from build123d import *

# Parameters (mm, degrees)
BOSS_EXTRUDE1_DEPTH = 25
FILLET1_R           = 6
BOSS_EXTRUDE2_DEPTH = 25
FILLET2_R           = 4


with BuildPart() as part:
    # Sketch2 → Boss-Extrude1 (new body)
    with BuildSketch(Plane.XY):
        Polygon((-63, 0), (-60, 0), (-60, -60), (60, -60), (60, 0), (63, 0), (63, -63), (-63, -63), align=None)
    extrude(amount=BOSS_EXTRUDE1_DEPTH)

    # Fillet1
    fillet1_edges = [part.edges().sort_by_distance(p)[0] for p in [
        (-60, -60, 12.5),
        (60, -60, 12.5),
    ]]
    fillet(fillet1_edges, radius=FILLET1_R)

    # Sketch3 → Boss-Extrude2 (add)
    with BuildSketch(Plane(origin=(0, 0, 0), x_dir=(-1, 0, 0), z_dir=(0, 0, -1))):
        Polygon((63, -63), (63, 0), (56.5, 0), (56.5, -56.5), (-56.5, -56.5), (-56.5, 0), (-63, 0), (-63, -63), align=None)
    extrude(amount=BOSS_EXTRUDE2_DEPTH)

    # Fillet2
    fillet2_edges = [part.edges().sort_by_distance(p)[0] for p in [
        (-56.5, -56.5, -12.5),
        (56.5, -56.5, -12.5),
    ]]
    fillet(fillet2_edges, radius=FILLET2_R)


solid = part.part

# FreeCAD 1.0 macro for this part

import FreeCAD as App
import Part
import Sketcher
Q = App.Units.Quantity


def edges_at(feature, points):
    """Names of the edges that pass closest to the given points."""
    edges = feature.Shape.Edges
    near = lambda p: min(range(len(edges)), key=lambda i: edges[i].distToShape(Part.Vertex(*p))[0])
    return sorted({f"Edge{near(p) + 1}" for p in points})


def add_polygon(sketch, points):
    """Adds a closed chain of lines whose ends are joined by coincident constraints."""
    first, n = sketch.GeometryCount, len(points)
    for a, b in zip(points, points[1:] + points[:1]):
        sketch.addGeometry(Part.LineSegment(App.Vector(*a, 0), App.Vector(*b, 0)), False)
    for i in range(n):
        sketch.addConstraint(Sketcher.Constraint("Coincident", first + i, 2, first + (i + 1) % n, 1))

doc = App.newDocument("Part")
body = doc.addObject("PartDesign::Body", "Body")

# Sketch on XY plane
sketch1 = doc.addObject("Sketcher::SketchObject", "Sketch")
body.addObject(sketch1)
sketch1.AttachmentSupport = (doc.XY_Plane, [""])
sketch1.MapMode = "FlatFace"
add_polygon(sketch1, [(-60, 0), (-63, 0), (-63, -63), (63, -63), (63, 0), (60, 0), (60, -60), (-60, -60)])  # lines 0-7
sketch1.addConstraint([
    Sketcher.Constraint("Horizontal", 0),
    Sketcher.Constraint("Vertical", 1),
    Sketcher.Constraint("Horizontal", 2),
    Sketcher.Constraint("Vertical", 3),
    Sketcher.Constraint("Horizontal", 4),
    Sketcher.Constraint("Vertical", 5),
    Sketcher.Constraint("Horizontal", 6),
    Sketcher.Constraint("Vertical", 7),
    Sketcher.Constraint("Symmetric", 0, 2, 3, 2, -1, 1),
    Sketcher.Constraint("Symmetric", 4, 2, 7, 2, -2),
    Sketcher.Constraint("DistanceX", 0, 2, 0, 1, Q("3 mm")),
    Sketcher.Constraint("DistanceX", 2, 1, 2, 2, Q("126 mm")),
    Sketcher.Constraint("DistanceY", 1, 2, 1, 1, Q("63 mm")),
    Sketcher.Constraint("DistanceY", 5, 2, 5, 1, Q("60 mm")),
])
pad1 = doc.addObject("PartDesign::Pad", "Pad")
body.addObject(pad1)
pad1.Profile = sketch1
pad1.Length = 25
doc.recompute()

fillet = doc.addObject("PartDesign::Fillet", "Fillet")
body.addObject(fillet)
fillet.Base = (pad1, edges_at(pad1, [(-60, -60, 12.5), (60, -60, 12.5)]))
fillet.Radius = 6

# Sketch on XY plane
sketch2 = doc.addObject("Sketcher::SketchObject", "Sketch001")
body.addObject(sketch2)
sketch2.AttachmentSupport = (doc.XY_Plane, [""])
sketch2.MapMode = "FlatFace"
add_polygon(sketch2, [(-63, -63), (-63, 0), (-56.5, 0), (-56.5, -56.5), (56.5, -56.5), (56.5, 0), (63, 0), (63, -63)])  # lines 0-7
sketch2.addConstraint([
    Sketcher.Constraint("Vertical", 0),
    Sketcher.Constraint("Horizontal", 1),
    Sketcher.Constraint("Vertical", 2),
    Sketcher.Constraint("Horizontal", 3),
    Sketcher.Constraint("Vertical", 4),
    Sketcher.Constraint("Horizontal", 5),
    Sketcher.Constraint("Vertical", 6),
    Sketcher.Constraint("Horizontal", 7),
    Sketcher.Constraint("Symmetric", 1, 2, 4, 2, -1, 1),
    Sketcher.Constraint("Symmetric", 0, 2, 5, 2, -2),
    Sketcher.Constraint("DistanceX", 3, 1, 3, 2, Q("113 mm")),
    Sketcher.Constraint("DistanceX", 7, 2, 7, 1, Q("126 mm")),
    Sketcher.Constraint("DistanceY", 0, 1, 0, 2, Q("63 mm")),
    Sketcher.Constraint("DistanceY", 2, 2, 2, 1, Q("56.5 mm")),
])
pad2 = doc.addObject("PartDesign::Pad", "Pad001")
body.addObject(pad2)
pad2.Profile = sketch2
pad2.Length = 25
pad2.Reversed = True
doc.recompute()

fillet2 = doc.addObject("PartDesign::Fillet", "Fillet001")
body.addObject(fillet2)
fillet2.Base = (pad2, edges_at(pad2, [(-56.5, -56.5, -12.5), (56.5, -56.5, -12.5)]))
fillet2.Radius = 4

doc.recompute()
